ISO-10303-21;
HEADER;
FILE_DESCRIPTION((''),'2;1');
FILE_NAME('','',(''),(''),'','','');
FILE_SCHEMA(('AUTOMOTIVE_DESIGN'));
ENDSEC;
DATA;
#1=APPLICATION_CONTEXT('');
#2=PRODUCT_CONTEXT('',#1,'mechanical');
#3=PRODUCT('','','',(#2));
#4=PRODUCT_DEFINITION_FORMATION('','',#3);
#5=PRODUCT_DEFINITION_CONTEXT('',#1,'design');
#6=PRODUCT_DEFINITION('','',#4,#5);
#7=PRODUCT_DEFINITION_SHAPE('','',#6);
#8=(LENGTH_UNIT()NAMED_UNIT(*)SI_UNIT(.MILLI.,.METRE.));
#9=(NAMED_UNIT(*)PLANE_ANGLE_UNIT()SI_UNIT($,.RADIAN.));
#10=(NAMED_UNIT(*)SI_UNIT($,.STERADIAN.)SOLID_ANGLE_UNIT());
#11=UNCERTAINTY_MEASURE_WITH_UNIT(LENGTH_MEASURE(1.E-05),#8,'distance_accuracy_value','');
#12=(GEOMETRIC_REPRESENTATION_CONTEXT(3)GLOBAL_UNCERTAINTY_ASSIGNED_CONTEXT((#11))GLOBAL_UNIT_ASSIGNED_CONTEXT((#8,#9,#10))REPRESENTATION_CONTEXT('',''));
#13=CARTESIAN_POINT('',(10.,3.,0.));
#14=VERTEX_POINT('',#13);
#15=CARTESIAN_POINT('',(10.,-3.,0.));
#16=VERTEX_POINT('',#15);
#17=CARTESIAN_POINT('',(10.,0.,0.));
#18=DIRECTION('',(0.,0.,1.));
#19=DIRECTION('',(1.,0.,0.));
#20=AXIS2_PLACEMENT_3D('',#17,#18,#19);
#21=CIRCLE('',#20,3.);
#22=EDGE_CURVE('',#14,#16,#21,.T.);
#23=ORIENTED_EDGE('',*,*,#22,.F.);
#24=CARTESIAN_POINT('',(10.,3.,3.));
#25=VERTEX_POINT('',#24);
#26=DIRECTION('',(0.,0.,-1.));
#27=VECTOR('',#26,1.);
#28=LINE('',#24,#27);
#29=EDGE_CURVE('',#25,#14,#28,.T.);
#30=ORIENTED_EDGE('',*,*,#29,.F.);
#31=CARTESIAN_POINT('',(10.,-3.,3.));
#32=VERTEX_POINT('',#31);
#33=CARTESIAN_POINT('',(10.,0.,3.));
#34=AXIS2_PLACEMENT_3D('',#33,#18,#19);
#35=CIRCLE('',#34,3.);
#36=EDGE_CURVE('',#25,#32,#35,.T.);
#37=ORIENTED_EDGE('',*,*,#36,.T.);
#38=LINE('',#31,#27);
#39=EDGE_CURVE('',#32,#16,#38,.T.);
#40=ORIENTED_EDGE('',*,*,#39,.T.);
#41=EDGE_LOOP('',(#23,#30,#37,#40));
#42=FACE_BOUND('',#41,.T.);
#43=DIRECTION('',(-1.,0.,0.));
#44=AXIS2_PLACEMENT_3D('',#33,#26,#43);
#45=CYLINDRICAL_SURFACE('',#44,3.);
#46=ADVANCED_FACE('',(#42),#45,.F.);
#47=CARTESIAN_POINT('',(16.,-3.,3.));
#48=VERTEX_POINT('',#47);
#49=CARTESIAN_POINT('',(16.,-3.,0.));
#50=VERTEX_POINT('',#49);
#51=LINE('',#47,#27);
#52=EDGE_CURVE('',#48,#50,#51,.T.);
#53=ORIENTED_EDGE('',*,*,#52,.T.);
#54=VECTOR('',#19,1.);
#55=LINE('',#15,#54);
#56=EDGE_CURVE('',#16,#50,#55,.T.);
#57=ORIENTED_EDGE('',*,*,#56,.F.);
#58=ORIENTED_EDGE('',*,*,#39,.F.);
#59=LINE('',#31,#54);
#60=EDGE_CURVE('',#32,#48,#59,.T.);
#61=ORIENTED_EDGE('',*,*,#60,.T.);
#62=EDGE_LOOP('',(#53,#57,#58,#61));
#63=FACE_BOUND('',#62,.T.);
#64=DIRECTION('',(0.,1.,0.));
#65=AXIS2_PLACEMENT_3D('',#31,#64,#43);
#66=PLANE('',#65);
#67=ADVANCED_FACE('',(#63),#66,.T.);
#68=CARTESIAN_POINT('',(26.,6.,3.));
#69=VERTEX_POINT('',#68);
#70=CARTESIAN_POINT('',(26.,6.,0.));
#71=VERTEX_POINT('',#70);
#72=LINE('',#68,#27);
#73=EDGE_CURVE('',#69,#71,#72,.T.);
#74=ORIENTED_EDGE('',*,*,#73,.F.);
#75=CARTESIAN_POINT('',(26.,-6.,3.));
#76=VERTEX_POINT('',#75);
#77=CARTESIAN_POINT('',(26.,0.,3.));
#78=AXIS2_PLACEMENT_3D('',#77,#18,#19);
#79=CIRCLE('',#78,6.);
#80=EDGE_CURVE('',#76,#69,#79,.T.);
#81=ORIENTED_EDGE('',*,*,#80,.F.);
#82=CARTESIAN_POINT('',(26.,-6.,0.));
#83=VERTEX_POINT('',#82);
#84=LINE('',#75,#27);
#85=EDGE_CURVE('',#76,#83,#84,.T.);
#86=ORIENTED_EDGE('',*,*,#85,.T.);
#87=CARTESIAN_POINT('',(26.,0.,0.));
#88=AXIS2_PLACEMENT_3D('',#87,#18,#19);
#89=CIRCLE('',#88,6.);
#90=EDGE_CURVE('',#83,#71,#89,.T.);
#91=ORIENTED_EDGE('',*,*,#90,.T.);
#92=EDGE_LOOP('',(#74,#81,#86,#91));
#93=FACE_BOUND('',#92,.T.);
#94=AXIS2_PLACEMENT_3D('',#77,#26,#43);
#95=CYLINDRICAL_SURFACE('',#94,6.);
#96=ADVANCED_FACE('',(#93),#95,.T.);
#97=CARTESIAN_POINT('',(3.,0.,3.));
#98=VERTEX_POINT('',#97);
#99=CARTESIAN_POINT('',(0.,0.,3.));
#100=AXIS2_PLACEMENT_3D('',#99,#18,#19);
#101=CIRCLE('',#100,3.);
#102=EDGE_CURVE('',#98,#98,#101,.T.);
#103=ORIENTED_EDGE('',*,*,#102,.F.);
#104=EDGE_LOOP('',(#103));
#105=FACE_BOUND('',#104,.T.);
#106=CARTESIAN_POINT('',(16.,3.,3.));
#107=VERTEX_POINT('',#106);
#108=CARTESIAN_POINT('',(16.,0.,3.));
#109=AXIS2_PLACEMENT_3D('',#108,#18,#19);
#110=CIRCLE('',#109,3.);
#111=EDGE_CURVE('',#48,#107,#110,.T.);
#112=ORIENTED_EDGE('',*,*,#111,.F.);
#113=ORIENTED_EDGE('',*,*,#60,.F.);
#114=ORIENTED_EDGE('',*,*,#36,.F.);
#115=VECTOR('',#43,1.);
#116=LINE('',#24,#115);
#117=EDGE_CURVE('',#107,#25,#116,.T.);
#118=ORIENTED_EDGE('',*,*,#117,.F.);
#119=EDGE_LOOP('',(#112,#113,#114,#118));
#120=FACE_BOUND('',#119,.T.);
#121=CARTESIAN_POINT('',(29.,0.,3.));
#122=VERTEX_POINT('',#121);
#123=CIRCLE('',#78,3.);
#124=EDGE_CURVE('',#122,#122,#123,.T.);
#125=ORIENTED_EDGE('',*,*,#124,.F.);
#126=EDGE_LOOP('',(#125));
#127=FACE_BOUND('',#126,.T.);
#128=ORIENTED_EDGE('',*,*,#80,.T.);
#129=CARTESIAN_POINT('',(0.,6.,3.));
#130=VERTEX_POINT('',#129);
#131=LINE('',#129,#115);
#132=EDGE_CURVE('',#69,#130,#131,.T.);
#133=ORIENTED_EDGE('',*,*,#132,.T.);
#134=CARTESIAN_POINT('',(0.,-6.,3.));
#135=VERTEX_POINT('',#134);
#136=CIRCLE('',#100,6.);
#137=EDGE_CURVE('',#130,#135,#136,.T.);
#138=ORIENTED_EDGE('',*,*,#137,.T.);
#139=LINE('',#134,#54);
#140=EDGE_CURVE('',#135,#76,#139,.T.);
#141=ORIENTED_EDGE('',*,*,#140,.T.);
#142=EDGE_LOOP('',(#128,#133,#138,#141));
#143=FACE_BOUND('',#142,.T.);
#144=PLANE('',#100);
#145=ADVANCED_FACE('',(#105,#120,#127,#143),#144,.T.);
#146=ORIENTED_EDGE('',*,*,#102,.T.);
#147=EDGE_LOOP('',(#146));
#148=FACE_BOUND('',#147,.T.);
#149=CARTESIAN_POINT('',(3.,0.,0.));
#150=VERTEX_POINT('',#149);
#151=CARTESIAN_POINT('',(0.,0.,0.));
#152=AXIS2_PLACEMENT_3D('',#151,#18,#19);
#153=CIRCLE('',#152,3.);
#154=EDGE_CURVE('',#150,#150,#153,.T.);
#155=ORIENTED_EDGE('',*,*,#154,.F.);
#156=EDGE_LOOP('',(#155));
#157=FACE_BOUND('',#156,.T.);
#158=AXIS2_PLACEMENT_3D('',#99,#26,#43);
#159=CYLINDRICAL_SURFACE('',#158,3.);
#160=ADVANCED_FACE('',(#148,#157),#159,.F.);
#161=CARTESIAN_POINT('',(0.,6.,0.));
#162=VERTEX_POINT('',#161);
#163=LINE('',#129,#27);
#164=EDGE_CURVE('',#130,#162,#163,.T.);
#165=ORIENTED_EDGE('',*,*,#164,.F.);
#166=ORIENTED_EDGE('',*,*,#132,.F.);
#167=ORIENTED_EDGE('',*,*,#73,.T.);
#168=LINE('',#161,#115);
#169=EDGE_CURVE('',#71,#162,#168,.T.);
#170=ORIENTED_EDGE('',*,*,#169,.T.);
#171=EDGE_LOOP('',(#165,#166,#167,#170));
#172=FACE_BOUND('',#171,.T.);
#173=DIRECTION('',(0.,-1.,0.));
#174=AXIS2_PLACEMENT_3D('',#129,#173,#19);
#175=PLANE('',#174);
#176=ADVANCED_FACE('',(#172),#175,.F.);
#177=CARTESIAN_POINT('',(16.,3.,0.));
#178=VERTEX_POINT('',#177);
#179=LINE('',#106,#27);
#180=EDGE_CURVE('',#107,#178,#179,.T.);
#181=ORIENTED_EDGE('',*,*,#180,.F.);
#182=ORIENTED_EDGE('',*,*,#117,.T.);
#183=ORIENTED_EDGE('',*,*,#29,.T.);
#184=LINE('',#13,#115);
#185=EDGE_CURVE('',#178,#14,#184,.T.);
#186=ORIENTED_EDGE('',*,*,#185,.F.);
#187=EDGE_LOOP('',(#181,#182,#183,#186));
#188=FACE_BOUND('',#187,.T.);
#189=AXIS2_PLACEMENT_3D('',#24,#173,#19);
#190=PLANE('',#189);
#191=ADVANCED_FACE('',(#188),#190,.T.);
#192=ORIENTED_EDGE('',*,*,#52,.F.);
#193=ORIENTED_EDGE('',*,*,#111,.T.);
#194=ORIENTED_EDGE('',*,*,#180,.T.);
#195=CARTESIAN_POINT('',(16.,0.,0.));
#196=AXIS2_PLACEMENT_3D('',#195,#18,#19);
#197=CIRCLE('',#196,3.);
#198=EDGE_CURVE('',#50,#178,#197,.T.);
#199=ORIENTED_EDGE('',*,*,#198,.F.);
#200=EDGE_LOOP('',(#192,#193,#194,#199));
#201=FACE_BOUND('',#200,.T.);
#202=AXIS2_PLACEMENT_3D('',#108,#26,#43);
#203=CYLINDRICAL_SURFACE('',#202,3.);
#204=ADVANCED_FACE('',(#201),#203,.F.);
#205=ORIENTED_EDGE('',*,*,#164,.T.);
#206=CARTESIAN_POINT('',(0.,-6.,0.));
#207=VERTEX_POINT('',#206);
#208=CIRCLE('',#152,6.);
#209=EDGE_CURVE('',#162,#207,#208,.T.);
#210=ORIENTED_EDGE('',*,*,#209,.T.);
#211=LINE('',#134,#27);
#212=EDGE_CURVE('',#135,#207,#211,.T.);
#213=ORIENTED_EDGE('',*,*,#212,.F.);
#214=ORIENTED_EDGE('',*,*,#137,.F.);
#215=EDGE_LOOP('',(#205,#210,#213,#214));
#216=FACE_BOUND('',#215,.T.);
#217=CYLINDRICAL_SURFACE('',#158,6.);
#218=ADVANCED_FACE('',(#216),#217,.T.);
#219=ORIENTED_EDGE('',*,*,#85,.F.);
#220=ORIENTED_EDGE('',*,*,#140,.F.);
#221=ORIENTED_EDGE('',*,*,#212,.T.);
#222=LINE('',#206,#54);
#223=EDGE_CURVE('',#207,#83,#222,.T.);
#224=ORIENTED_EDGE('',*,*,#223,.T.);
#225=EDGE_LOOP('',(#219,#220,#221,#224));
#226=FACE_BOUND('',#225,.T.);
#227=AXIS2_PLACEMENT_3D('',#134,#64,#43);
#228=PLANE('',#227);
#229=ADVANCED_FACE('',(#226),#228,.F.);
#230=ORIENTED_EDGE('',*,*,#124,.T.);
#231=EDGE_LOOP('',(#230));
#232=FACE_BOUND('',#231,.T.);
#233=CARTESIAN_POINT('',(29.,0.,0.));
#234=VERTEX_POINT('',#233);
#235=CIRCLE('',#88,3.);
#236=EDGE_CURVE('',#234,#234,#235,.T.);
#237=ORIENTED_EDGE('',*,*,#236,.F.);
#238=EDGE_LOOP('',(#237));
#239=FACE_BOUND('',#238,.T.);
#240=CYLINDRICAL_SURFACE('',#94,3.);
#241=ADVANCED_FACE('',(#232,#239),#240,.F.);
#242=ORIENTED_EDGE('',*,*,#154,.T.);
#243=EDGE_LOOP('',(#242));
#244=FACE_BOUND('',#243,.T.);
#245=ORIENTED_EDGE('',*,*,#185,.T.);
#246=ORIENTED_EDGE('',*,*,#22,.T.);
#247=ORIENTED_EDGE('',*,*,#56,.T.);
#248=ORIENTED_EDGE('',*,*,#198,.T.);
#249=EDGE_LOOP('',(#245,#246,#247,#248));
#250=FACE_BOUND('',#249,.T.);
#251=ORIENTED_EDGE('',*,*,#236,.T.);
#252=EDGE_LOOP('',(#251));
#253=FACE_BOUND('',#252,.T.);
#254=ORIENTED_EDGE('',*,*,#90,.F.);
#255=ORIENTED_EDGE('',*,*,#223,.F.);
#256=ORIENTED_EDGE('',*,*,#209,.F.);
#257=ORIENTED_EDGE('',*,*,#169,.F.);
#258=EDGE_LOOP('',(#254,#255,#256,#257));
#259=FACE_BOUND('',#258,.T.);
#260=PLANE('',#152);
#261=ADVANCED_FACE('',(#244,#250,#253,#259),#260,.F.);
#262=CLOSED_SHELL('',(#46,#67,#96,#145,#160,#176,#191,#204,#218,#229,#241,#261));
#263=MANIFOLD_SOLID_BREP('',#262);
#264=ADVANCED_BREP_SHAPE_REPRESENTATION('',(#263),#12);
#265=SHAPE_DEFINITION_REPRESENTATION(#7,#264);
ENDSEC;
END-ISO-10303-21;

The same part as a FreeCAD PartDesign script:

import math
import FreeCAD as App
import Part
import Sketcher

doc = App.newDocument("Part")
body = doc.addObject("PartDesign::Body", "Body")

# Sketch on XY plane
sketch1 = body.newObject("Sketcher::SketchObject", "Sketch")
sketch1.AttachmentSupport = (doc.getObject("XY_Plane"), [""])
sketch1.MapMode = "FlatFace"
sketch1.addGeometry([
    Part.LineSegment(App.Vector(26, 6, 0), App.Vector(0, 6, 0)),  # 0
    Part.ArcOfCircle(Part.Circle(App.Vector(0, 0, 0), App.Vector(0, 0, 1), 6), math.radians(90), math.radians(270)),  # 1
    Part.LineSegment(App.Vector(0, -6, 0), App.Vector(26, -6, 0)),  # 2
    Part.ArcOfCircle(Part.Circle(App.Vector(26, 0, 0), App.Vector(0, 0, 1), 6), math.radians(-90), math.radians(90)),  # 3
    Part.Circle(App.Vector(26, 0, 0), App.Vector(0, 0, 1), 3),  # 4
    Part.LineSegment(App.Vector(10, 3, 0), App.Vector(16, 3, 0)),  # 5
    Part.ArcOfCircle(Part.Circle(App.Vector(16, 0, 0), App.Vector(0, 0, 1), 3), math.radians(-90), math.radians(90)),  # 6
    Part.LineSegment(App.Vector(16, -3, 0), App.Vector(10, -3, 0)),  # 7
    Part.ArcOfCircle(Part.Circle(App.Vector(10, 0, 0), App.Vector(0, 0, 1), 3), math.radians(90), math.radians(270)),  # 8
    Part.Circle(App.Vector(0, 0, 0), App.Vector(0, 0, 1), 3),  # 9
], False)
sketch1.addConstraint([
    Sketcher.Constraint("Tangent", 0, 2, 1, 1),
    Sketcher.Constraint("Tangent", 1, 2, 2, 1),
    Sketcher.Constraint("Tangent", 2, 2, 3, 1),
    Sketcher.Constraint("Tangent", 3, 2, 0, 1),
    Sketcher.Constraint("Tangent", 5, 2, 6, 2),
    Sketcher.Constraint("Tangent", 6, 1, 7, 1),
    Sketcher.Constraint("Tangent", 7, 2, 8, 2),
    Sketcher.Constraint("Tangent", 8, 1, 5, 1),
    Sketcher.Constraint("Horizontal", 0),
    Sketcher.Constraint("Horizontal", 2),
    Sketcher.Constraint("Horizontal", 5),
    Sketcher.Constraint("Horizontal", 7),
    Sketcher.Constraint("Coincident", 1, 3, -1, 1),
    Sketcher.Constraint("Coincident", 9, 3, -1, 1),
    Sketcher.Constraint("Coincident", 4, 3, 3, 3),
    Sketcher.Constraint("Equal", 4, 6),
    Sketcher.Constraint("Equal", 8, 9),
    Sketcher.Constraint("PointOnObject", 6, 3, -1),
    Sketcher.Constraint("Diameter", 4, 6.0),
    Sketcher.Constraint("Radius", 1, 6.0),
    Sketcher.Constraint("DistanceX", 0, 2, 0, 1, 26.0),
    Sketcher.Constraint("DistanceX", 5, 1, 5, 2, 6.0),
    Sketcher.Constraint("DistanceX", -1, 1, 6, 3, 16.0),
])
pad1 = body.newObject("PartDesign::Pad", "Pad")
pad1.Profile = sketch1
pad1.Length = 3

doc.recompute()
